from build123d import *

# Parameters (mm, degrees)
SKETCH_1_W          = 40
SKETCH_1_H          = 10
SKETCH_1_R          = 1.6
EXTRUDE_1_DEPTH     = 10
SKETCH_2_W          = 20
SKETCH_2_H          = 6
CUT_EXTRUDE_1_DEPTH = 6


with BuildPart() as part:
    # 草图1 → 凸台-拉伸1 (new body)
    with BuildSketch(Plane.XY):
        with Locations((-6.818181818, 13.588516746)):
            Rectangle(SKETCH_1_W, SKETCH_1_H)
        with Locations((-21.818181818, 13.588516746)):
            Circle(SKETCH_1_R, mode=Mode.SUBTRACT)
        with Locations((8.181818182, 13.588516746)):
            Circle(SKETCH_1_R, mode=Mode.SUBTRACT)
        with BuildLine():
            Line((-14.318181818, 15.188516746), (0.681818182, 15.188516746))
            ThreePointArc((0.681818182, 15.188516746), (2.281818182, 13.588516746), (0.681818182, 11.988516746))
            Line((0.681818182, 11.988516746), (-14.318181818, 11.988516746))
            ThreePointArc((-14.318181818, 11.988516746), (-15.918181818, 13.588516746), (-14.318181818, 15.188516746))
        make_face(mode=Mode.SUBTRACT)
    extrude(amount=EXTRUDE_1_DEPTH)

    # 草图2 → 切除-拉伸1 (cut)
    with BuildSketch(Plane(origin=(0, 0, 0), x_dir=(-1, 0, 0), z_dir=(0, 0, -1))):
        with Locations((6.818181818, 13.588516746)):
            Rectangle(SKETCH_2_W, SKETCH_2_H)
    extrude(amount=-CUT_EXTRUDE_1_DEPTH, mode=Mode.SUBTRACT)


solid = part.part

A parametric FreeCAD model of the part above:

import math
import FreeCAD as App
import Part
import Sketcher

V = App.Vector
Q = App.Units.Quantity


def add_polygon(sketch, points):
    """Adds a closed chain of lines whose ends are joined by coincident constraints."""
    first, n = sketch.GeometryCount, len(points)
    for a, b in zip(points, points[1:] + points[:1]):
        sketch.addGeometry(Part.LineSegment(App.Vector(*a, 0), App.Vector(*b, 0)), False)
    for i in range(n):
        sketch.addConstraint(Sketcher.Constraint("Coincident", first + i, 2, first + (i + 1) % n, 1))

doc = App.newDocument("Part")
body = doc.addObject("PartDesign::Body", "Body")

sketch1 = body.newObject("Sketcher::SketchObject", "Sketch")
sketch1.AttachmentSupport = (doc.getObject("XY_Plane"), [""])
sketch1.MapMode = "FlatFace"
add_polygon(sketch1, [(-26.8, 18.6), (-26.8, 8.6), (13.2, 8.6), (13.2, 18.6)])
sketch1.addGeometry(Part.Circle(V(-21.8, 13.6, 0), V(0, 0, 1), 1.6), False)
sketch1.addGeometry(Part.ArcOfCircle(Part.Circle(V(-14.3, 13.6, 0), V(0, 0, 1), 1.6), math.radians(90), math.radians(270)), False)
sketch1.addGeometry(Part.LineSegment(V(-14.3, 15.2, 0), V(0.7, 15.2, 0)), False)
sketch1.addGeometry(Part.ArcOfCircle(Part.Circle(V(0.7, 13.6, 0), V(0, 0, 1), 1.6), math.radians(-90), math.radians(90)), False)
sketch1.addGeometry(Part.LineSegment(V(0.7, 12, 0), V(-14.3, 12, 0)), False)
sketch1.addGeometry(Part.Circle(V(8.2, 13.6, 0), V(0, 0, 1), 1.6), False)
sketch1.addConstraint([
    Sketcher.Constraint("Tangent", 5, 1, 6, 1),
    Sketcher.Constraint("Tangent", 6, 2, 7, 2),
    Sketcher.Constraint("Tangent", 7, 1, 8, 1),
    Sketcher.Constraint("Tangent", 8, 2, 5, 2),
    Sketcher.Constraint("Vertical", 0),
    Sketcher.Constraint("Horizontal", 1),
    Sketcher.Constraint("Vertical", 2),
    Sketcher.Constraint("Horizontal", 3),
    Sketcher.Constraint("Horizontal", 6),
    Sketcher.Constraint("Horizontal", 8),
    Sketcher.Constraint("Equal", 4, 5),
    Sketcher.Constraint("Equal", 7, 9),
    Sketcher.Constraint("Horizontal", 4, 3, 5, 3),
    Sketcher.Constraint("Horizontal", 7, 3, 9, 3),
    Sketcher.Constraint("Diameter", 4, Q("3.2 mm")),
    Sketcher.Constraint("DistanceX", 1, 1, 1, 2, Q("40 mm")),
    Sketcher.Constraint("DistanceX", 6, 1, 6, 2, Q("15 mm")),
    Sketcher.Constraint("DistanceY", 0, 2, 0, 1, Q("10 mm")),
    Sketcher.Constraint("DistanceX", 4, 3, 9, 3, Q("30 mm")),
    Sketcher.Constraint("DistanceX", 0, 2, 4, 3, Q("5 mm")),
    Sketcher.Constraint("DistanceY", 0, 2, 4, 3, Q("5 mm")),
    Sketcher.Constraint("DistanceX", 4, 3, 5, 3, Q("7.5 mm")),
    Sketcher.Constraint("DistanceX", 4, 3, -1, 1, Q("21.818182 mm")),
    Sketcher.Constraint("DistanceY", -1, 1, 4, 3, Q("13.588517 mm")),
])
pad1 = body.newObject("PartDesign::Pad", "Pad")
pad1.Profile = sketch1
pad1.Length = 10

sketch2 = body.newObject("Sketcher::SketchObject", "Sketch001")
sketch2.AttachmentSupport = (doc.getObject("XY_Plane"), [""])
sketch2.MapMode = "FlatFace"
add_polygon(sketch2, [(3, 17), (3, 11), (-17, 11), (-17, 17)])
sketch2.addConstraint([
    Sketcher.Constraint("Vertical", 0),
    Sketcher.Constraint("Horizontal", 1),
    Sketcher.Constraint("Vertical", 2),
    Sketcher.Constraint("Horizontal", 3),
    Sketcher.Constraint("DistanceX", 1, 2, 1, 1, Q("20 mm")),
    Sketcher.Constraint("DistanceY", 0, 2, 0, 1, Q("6 mm")),
    Sketcher.Constraint("DistanceX", -1, 1, 0, 2, Q("3.181818 mm")),
    Sketcher.Constraint("DistanceY", -1, 1, 0, 2, Q("10.588517 mm")),
])
pocket1 = body.newObject("PartDesign::Pocket", "Pocket")
pocket1.Profile = sketch2
pocket1.Length = 6
pocket1.Reversed = True

doc.recompute()
